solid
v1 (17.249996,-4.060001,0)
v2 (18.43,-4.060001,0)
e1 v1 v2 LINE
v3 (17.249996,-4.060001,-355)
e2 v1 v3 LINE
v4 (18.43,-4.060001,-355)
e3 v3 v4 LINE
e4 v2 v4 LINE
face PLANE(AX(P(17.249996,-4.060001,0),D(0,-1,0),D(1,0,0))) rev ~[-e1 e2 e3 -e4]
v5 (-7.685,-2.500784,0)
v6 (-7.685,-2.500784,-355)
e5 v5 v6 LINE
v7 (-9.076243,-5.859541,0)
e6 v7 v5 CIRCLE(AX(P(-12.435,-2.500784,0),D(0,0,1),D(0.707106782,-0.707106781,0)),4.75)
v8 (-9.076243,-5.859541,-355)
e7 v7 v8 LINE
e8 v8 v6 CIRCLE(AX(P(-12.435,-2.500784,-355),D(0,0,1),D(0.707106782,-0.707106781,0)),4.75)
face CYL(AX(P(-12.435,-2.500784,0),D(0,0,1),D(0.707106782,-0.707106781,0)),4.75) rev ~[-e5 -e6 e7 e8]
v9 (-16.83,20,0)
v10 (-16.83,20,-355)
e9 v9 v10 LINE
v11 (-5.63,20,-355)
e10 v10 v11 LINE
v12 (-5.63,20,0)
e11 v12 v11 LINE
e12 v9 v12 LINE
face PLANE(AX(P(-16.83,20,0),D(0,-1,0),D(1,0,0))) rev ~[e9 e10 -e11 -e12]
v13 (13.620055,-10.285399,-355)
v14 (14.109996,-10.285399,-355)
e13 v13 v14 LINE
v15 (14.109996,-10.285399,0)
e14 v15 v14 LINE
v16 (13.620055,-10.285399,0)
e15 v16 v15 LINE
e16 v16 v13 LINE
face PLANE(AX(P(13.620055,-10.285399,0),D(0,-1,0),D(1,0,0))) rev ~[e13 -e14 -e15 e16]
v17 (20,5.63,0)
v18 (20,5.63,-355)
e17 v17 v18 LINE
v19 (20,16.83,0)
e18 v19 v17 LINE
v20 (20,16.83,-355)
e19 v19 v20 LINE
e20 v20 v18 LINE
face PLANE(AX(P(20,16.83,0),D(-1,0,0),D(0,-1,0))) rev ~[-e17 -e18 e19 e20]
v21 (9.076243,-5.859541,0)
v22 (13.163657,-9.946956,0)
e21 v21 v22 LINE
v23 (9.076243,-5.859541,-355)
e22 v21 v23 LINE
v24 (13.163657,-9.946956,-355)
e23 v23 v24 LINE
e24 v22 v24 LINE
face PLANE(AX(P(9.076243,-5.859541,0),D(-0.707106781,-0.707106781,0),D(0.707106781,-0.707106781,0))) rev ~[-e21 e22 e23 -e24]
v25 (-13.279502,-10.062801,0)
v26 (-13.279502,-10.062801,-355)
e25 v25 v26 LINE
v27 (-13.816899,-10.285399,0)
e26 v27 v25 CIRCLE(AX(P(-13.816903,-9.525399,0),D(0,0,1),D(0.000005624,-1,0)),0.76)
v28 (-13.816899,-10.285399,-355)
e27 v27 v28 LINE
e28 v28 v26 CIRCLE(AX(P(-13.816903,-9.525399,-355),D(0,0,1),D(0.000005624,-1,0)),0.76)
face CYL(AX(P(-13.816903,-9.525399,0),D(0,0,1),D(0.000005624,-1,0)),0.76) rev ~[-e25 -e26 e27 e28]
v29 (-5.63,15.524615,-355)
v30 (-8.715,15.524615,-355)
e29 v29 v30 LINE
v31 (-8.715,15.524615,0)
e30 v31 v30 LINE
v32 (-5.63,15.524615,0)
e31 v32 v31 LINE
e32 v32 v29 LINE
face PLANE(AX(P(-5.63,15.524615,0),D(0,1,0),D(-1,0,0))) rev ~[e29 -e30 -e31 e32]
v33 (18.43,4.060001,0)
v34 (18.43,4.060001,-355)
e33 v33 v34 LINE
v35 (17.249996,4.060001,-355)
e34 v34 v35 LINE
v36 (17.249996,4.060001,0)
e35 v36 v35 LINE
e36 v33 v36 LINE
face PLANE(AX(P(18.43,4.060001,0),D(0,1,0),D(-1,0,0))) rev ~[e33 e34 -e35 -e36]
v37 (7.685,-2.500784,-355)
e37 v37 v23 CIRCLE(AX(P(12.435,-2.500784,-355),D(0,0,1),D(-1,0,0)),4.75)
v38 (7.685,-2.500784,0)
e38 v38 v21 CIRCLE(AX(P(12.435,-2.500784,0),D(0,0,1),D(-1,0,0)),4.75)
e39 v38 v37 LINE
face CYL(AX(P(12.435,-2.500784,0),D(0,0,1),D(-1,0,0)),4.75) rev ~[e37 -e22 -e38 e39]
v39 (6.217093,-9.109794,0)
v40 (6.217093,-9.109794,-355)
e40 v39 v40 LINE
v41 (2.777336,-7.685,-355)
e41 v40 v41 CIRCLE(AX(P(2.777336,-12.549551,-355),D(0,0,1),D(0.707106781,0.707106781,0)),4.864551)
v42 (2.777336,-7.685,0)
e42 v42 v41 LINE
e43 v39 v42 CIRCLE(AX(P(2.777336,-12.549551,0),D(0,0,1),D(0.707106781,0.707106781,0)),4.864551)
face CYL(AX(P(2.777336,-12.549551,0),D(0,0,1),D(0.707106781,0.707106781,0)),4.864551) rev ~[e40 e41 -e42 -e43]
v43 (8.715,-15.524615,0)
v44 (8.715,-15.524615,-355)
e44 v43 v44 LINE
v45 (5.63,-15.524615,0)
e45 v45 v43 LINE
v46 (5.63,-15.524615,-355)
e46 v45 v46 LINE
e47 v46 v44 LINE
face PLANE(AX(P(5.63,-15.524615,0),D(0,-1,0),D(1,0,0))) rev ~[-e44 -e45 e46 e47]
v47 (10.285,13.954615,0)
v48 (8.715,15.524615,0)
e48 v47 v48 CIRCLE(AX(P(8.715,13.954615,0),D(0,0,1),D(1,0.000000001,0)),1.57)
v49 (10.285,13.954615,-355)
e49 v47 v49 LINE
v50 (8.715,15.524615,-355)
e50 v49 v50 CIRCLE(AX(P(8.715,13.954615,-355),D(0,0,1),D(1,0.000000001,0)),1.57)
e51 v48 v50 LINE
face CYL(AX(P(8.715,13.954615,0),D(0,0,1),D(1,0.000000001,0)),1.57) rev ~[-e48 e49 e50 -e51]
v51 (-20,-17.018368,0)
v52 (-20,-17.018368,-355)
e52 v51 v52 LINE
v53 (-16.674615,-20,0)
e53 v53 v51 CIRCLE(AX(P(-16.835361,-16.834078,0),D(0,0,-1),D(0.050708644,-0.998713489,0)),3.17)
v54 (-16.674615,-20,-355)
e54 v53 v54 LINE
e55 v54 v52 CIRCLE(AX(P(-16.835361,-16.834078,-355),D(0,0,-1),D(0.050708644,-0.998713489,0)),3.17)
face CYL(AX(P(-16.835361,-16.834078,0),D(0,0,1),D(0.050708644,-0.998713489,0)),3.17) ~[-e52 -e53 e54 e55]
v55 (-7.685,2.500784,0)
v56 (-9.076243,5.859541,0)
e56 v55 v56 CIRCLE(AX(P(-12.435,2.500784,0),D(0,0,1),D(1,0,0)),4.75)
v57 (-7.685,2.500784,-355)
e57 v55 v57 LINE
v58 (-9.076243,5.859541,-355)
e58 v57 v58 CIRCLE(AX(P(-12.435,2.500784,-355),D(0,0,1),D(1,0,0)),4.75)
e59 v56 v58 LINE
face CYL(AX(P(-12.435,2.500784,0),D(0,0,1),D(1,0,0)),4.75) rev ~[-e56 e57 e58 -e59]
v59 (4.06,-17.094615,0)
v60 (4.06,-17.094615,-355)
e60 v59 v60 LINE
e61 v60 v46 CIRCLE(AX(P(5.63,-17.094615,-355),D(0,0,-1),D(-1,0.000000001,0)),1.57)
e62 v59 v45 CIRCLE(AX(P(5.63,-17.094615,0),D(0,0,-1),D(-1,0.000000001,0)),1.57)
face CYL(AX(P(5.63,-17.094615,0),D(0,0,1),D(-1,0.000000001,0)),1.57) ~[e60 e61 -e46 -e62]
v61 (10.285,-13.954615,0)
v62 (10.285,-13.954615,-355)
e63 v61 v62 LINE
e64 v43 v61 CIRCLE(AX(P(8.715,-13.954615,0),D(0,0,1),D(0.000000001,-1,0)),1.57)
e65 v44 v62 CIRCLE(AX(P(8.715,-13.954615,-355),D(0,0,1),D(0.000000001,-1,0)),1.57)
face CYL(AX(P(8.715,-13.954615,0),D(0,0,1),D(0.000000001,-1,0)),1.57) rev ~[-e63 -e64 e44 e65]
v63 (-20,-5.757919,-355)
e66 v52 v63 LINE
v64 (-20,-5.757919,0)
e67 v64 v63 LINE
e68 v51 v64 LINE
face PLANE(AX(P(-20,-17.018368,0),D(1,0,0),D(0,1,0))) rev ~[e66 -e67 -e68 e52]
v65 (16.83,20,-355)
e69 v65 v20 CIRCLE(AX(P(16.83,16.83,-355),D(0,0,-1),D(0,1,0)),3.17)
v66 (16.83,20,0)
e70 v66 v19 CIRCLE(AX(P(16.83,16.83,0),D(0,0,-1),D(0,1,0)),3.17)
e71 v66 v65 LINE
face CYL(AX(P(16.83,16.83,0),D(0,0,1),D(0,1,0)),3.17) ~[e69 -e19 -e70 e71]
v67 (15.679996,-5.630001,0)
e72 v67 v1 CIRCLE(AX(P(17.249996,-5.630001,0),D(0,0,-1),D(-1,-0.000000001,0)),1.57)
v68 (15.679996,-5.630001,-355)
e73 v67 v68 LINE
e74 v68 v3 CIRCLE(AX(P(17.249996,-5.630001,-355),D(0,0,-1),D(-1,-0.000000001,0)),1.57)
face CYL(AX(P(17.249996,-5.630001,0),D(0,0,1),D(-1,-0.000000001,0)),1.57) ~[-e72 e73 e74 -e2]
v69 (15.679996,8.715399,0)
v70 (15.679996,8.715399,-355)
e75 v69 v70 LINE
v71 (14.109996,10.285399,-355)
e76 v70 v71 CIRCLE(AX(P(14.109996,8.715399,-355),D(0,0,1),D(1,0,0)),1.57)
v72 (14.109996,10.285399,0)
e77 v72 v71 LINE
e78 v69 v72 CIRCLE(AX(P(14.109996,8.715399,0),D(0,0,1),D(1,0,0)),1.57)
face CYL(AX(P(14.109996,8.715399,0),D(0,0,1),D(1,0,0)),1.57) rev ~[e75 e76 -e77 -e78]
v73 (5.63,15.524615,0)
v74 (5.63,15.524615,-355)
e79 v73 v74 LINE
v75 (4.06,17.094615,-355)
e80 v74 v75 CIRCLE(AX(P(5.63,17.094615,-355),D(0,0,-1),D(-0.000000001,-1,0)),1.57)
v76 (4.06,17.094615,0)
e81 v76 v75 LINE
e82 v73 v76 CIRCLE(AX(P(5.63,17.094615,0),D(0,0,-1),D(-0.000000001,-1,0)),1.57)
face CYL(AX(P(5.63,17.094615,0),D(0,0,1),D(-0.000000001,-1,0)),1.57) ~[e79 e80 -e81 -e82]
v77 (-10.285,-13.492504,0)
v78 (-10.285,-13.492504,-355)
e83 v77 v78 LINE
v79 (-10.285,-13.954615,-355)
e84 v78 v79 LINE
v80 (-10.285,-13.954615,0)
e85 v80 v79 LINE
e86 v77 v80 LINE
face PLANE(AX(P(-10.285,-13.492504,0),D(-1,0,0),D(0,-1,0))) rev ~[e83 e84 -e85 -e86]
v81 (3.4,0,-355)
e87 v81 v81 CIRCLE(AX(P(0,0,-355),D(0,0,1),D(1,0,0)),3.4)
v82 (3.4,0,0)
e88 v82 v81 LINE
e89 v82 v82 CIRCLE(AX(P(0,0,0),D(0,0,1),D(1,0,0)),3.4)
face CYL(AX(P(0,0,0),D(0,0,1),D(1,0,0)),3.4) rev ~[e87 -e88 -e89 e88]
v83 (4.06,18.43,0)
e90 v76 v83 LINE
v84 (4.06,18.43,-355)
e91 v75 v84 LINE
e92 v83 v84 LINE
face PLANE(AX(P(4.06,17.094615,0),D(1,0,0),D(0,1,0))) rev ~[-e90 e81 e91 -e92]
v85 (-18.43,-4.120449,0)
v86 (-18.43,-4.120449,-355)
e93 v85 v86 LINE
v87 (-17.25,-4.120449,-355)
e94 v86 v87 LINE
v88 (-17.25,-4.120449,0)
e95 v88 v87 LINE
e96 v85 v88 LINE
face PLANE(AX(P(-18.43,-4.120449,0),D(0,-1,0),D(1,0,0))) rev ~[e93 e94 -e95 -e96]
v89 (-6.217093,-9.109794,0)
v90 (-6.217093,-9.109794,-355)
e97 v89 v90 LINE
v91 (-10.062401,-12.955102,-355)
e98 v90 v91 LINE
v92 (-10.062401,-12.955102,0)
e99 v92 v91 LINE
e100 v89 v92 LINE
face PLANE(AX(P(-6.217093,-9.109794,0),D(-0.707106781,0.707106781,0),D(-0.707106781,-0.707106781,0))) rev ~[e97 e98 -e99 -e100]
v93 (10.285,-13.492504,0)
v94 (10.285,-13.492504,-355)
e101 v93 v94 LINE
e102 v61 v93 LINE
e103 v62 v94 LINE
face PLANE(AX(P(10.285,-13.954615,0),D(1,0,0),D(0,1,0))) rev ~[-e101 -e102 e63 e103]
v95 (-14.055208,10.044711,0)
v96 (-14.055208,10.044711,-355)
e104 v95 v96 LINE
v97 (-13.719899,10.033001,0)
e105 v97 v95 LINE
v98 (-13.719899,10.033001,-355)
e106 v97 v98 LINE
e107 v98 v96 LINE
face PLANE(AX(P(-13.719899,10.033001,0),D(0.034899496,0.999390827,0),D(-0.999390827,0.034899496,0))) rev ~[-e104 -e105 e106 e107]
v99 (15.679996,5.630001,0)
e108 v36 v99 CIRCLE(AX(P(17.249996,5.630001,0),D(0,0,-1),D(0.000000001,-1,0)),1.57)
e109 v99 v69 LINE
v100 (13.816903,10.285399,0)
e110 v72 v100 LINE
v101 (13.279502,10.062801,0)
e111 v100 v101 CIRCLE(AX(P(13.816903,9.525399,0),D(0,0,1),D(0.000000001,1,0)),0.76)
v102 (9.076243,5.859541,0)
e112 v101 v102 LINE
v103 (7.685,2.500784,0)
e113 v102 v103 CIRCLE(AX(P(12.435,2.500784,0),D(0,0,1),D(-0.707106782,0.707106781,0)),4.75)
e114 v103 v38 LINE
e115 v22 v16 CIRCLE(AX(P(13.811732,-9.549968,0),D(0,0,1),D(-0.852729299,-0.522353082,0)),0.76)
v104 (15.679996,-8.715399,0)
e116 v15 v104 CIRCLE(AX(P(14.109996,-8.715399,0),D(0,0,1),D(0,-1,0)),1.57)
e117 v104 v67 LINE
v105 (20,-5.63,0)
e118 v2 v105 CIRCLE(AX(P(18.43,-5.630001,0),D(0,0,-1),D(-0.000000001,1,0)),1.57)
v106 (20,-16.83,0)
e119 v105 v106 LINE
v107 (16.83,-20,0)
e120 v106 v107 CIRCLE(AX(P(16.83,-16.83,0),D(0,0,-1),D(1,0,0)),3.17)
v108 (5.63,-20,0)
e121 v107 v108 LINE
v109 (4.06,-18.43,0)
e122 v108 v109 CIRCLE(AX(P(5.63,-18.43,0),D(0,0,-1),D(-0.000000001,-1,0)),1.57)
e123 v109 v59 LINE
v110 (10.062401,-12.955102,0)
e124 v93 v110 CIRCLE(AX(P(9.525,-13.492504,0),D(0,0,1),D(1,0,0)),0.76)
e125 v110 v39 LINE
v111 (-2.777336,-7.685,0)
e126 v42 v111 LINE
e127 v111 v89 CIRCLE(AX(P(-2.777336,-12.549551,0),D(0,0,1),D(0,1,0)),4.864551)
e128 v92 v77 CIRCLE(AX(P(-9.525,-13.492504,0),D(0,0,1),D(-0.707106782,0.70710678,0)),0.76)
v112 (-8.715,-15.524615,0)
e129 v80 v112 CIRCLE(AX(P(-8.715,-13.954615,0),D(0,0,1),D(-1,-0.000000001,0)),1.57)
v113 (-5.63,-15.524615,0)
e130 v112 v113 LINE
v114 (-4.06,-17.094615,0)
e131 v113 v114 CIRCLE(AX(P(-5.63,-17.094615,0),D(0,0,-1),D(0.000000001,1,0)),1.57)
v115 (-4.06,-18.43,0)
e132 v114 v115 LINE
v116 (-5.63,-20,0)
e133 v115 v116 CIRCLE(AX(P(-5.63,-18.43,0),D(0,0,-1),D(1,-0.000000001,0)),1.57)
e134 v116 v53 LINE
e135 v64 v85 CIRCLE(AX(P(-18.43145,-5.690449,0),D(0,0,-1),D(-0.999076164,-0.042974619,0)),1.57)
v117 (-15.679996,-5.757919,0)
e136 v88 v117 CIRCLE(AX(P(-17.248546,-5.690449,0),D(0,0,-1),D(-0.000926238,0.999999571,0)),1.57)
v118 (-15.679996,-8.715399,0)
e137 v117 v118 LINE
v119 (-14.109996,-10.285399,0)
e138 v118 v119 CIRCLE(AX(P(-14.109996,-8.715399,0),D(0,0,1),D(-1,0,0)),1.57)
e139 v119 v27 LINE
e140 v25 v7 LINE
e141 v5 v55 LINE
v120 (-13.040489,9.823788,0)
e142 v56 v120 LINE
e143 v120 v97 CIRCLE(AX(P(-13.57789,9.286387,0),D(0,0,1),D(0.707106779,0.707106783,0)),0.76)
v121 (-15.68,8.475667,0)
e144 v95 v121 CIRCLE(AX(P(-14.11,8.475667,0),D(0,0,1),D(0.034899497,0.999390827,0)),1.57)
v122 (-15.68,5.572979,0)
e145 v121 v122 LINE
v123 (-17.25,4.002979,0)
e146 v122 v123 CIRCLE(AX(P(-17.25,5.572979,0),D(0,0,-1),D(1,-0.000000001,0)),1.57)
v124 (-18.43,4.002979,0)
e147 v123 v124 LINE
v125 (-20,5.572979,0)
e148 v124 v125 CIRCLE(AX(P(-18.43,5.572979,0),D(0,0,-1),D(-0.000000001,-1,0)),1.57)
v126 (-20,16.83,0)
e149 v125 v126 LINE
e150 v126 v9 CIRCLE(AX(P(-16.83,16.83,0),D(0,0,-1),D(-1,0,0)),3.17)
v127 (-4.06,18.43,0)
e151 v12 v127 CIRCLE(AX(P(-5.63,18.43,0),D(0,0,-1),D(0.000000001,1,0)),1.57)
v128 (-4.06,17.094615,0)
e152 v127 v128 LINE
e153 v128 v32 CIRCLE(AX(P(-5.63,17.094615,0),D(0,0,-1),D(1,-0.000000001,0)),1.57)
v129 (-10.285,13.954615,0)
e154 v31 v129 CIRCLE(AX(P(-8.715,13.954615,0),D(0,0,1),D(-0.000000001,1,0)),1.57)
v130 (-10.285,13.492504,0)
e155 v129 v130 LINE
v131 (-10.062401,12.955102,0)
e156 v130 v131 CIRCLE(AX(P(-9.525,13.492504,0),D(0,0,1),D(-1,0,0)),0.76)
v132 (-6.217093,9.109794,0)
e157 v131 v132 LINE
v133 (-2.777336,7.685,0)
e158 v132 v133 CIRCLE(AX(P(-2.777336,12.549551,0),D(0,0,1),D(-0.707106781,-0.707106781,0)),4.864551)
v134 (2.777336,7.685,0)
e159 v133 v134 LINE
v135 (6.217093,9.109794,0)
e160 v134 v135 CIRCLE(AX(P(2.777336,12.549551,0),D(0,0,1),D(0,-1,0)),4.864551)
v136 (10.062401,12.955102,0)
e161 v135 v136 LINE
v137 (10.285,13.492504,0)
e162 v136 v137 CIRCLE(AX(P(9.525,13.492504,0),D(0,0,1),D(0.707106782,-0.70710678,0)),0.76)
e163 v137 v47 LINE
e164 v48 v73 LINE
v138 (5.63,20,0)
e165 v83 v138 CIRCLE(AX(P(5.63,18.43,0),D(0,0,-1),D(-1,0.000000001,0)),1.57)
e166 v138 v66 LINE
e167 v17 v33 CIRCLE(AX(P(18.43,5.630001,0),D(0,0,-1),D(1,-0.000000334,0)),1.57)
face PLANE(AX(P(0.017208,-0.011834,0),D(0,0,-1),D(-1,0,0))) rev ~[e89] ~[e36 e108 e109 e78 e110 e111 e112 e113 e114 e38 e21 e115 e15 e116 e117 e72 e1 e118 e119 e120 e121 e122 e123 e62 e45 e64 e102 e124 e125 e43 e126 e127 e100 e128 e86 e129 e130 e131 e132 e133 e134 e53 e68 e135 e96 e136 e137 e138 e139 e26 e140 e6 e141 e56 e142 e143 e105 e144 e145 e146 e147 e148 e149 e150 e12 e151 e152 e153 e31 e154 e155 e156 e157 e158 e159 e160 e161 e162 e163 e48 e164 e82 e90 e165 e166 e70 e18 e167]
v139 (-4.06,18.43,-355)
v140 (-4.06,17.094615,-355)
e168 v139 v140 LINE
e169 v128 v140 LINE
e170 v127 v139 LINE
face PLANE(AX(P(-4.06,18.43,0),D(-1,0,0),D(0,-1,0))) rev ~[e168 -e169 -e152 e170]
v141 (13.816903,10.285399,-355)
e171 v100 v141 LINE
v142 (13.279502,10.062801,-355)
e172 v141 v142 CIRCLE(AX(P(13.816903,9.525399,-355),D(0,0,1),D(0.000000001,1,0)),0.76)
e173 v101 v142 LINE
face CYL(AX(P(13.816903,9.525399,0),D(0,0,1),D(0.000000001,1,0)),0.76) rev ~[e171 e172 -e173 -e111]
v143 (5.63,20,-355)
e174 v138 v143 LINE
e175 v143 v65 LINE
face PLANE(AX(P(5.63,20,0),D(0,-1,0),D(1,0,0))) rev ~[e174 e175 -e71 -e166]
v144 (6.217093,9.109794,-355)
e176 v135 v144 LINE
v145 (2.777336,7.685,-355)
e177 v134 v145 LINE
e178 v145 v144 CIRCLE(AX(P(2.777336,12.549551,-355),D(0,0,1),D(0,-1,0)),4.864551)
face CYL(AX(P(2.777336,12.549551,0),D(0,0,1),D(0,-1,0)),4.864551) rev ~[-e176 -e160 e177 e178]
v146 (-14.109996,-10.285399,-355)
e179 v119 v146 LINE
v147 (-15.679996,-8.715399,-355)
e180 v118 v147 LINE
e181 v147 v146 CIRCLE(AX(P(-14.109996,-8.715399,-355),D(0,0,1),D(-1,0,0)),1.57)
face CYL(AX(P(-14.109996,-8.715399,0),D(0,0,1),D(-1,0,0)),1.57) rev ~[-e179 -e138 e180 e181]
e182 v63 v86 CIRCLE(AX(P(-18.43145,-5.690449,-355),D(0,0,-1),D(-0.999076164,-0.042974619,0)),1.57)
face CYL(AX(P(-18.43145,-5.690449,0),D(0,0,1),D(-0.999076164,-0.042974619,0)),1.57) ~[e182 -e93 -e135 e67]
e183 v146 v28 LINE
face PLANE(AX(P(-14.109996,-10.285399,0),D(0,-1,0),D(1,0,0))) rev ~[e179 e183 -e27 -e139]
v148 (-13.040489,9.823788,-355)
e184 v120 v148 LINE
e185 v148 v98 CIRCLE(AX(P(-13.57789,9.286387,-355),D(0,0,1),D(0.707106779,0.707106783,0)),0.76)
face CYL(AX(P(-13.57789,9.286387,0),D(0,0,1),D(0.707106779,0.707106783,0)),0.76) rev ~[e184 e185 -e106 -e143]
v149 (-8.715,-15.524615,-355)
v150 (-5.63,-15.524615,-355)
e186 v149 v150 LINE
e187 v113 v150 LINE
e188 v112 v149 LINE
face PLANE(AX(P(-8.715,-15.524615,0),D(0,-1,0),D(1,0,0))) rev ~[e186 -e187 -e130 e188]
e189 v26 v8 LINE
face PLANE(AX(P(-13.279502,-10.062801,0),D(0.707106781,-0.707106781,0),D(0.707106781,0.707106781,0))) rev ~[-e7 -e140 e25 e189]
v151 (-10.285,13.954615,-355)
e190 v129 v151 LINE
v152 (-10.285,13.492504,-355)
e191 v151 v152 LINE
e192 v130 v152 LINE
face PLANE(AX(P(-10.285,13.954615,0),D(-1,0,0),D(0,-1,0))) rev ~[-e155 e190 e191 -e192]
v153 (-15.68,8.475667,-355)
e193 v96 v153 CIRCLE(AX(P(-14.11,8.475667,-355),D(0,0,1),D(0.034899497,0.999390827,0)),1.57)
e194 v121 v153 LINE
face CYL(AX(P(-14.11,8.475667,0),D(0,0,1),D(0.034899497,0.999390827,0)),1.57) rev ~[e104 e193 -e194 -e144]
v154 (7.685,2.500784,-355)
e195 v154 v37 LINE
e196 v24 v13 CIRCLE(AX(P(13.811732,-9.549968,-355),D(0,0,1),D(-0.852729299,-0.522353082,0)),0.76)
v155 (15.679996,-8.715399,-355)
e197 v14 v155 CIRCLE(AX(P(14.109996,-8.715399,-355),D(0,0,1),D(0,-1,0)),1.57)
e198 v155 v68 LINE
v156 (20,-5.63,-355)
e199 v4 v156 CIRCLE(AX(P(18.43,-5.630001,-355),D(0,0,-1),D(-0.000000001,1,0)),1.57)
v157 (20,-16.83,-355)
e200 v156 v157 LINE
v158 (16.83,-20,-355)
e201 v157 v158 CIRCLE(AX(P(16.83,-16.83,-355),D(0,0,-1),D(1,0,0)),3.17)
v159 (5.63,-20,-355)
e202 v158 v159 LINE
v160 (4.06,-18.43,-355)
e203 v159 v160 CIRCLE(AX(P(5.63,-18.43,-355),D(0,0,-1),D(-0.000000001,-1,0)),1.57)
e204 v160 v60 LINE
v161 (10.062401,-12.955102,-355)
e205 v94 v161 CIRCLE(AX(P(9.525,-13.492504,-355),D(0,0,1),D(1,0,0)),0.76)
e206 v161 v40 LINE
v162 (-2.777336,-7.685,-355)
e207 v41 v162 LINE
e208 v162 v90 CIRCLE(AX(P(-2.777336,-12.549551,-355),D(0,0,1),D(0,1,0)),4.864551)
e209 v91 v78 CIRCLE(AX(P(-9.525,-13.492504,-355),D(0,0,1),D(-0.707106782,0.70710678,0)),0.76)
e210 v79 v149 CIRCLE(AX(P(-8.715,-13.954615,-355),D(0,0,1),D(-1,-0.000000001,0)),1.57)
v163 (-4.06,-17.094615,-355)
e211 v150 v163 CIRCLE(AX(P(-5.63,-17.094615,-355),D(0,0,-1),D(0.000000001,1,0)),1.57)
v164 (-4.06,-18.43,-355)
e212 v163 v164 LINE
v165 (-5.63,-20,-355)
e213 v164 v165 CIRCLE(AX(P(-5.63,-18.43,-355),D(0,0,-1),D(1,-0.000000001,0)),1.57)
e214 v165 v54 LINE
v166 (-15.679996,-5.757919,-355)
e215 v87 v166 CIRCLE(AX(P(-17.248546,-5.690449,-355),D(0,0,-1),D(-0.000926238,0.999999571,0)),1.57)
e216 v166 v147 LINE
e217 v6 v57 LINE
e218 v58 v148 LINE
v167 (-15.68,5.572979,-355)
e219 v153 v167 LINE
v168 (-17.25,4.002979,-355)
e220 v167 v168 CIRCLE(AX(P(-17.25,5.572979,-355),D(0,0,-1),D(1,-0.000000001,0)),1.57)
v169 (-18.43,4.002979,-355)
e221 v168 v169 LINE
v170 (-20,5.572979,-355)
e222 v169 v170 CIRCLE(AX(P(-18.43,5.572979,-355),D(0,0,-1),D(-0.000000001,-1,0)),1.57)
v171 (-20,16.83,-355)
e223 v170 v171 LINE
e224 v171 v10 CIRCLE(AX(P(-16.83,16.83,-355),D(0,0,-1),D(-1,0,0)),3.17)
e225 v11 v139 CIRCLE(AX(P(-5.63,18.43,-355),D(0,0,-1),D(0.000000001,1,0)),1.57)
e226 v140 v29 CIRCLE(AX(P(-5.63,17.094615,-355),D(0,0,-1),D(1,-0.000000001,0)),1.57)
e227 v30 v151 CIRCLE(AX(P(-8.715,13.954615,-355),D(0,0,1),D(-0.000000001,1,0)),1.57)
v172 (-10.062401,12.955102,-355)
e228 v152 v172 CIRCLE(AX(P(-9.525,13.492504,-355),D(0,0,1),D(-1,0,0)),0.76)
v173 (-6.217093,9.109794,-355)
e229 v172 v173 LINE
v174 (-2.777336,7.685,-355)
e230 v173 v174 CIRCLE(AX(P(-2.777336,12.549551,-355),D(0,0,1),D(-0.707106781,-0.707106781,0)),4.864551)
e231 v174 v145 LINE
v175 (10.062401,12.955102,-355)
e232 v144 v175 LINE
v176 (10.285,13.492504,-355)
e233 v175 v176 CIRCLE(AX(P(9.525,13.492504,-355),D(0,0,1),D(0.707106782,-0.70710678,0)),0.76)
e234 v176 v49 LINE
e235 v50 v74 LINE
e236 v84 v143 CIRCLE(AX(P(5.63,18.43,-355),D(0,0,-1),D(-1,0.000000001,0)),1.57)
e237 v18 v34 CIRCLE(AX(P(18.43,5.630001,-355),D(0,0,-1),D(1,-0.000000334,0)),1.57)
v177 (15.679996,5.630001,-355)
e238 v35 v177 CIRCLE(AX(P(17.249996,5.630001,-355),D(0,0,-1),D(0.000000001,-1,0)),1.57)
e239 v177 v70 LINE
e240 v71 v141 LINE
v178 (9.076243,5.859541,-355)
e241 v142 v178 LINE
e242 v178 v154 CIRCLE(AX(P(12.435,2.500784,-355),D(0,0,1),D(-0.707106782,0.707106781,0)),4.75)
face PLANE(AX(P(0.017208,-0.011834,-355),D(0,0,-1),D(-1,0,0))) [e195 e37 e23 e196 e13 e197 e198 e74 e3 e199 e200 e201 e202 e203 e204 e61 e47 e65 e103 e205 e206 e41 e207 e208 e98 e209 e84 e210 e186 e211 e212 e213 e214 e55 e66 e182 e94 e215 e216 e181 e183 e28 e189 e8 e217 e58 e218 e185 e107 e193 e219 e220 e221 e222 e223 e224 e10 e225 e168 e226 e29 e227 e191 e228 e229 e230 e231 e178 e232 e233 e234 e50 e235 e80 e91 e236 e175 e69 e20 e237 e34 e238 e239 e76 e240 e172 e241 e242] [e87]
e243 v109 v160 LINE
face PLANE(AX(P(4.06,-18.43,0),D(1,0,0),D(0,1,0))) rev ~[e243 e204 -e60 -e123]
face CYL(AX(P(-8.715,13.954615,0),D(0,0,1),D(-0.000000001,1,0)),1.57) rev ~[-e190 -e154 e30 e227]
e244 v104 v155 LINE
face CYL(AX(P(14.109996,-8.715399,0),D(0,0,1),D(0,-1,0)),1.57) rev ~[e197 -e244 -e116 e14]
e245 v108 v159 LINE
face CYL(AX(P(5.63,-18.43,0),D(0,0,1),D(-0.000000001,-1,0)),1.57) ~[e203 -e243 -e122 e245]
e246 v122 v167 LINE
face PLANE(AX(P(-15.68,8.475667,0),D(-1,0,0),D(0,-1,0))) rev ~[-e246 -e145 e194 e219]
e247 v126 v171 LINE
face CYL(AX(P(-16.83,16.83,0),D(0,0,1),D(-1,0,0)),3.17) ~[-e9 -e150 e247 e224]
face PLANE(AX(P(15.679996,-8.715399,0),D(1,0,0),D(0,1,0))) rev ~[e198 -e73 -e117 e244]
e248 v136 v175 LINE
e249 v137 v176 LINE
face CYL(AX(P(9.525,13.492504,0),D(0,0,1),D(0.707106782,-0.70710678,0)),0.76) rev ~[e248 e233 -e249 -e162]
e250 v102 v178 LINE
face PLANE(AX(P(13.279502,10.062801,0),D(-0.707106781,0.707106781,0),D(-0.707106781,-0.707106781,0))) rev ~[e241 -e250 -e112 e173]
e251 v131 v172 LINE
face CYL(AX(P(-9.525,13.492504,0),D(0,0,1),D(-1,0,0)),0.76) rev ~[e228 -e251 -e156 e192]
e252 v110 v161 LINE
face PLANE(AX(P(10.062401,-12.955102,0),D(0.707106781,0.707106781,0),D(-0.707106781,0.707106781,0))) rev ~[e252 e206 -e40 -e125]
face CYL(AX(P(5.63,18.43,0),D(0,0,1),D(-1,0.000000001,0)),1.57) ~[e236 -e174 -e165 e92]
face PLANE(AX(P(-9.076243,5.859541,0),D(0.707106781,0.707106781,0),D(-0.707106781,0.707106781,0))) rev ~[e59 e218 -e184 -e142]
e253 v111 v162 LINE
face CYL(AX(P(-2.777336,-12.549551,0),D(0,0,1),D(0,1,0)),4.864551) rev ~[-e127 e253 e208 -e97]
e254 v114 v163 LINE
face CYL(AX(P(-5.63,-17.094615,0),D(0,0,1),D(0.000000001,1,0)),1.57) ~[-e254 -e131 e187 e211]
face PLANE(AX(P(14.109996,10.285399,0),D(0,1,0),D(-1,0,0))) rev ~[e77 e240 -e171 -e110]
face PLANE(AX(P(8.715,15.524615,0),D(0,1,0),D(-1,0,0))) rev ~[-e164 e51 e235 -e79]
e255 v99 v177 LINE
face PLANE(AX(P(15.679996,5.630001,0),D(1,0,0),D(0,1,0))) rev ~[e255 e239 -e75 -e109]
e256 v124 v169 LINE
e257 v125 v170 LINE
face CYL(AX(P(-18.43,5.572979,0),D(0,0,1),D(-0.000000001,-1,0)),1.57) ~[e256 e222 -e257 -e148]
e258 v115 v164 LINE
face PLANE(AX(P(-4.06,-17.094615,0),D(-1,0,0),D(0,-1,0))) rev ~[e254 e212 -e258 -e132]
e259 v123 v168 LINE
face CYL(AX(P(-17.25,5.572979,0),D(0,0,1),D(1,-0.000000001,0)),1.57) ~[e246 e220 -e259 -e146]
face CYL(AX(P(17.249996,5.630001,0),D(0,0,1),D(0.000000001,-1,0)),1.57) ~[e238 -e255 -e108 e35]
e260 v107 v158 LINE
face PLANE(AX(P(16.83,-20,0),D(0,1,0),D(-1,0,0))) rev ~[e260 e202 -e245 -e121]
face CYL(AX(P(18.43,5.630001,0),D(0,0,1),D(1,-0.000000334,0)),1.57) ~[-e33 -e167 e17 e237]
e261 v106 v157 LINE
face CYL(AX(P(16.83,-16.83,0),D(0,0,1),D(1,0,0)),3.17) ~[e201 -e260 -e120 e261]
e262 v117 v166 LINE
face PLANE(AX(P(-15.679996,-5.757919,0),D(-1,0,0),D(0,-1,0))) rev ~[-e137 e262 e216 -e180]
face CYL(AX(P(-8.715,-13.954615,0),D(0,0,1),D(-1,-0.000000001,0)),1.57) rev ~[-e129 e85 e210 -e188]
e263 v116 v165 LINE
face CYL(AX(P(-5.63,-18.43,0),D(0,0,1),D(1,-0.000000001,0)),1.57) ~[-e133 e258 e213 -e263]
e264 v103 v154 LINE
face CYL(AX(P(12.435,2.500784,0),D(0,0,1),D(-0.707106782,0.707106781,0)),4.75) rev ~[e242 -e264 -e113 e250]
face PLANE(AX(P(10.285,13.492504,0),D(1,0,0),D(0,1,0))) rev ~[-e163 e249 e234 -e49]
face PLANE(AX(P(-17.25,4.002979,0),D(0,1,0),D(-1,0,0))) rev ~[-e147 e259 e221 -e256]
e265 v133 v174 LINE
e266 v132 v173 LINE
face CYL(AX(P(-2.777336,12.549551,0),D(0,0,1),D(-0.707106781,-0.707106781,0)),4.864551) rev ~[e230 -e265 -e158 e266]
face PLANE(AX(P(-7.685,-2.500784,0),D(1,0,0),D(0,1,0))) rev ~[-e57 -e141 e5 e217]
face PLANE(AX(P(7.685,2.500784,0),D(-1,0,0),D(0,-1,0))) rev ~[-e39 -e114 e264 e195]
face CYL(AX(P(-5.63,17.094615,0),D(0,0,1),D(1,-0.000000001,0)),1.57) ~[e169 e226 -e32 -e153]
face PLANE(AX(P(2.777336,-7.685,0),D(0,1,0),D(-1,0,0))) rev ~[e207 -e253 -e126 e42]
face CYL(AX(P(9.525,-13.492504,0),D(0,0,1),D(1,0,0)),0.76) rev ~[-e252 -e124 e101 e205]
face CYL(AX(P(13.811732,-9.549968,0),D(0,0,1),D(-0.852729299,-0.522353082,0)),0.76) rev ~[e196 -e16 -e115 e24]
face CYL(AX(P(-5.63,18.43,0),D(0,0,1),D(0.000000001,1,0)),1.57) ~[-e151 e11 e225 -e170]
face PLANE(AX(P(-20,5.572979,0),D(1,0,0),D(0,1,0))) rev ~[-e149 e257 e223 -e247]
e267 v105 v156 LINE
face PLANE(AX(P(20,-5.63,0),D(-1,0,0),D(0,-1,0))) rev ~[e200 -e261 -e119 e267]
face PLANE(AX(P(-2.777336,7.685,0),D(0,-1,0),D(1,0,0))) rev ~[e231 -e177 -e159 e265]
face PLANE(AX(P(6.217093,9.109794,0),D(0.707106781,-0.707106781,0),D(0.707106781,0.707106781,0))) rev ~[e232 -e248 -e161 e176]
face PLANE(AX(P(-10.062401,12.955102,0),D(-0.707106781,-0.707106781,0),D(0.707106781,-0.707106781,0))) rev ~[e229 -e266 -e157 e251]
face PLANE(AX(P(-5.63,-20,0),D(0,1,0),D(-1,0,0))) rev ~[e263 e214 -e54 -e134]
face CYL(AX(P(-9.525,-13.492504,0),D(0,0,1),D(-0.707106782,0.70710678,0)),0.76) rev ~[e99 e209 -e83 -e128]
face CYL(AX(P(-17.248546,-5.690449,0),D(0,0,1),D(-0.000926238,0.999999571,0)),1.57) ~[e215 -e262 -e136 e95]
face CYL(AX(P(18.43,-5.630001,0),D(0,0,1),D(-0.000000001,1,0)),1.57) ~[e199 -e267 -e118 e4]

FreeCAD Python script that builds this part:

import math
import FreeCAD as App
import Part
import Sketcher

V = App.Vector
Q = App.Units.Quantity

doc = App.newDocument("Part")
params = doc.addObject("Spreadsheet::Sheet", "Params")
for row, (alias, value) in enumerate([
    ("sketch1_diameter", "6.8 mm"),
    ("sketch1_radius", "1.57 mm"),
    ("sketch1_radius2", "0.76 mm"),
    ("sketch1_radius3", "3.17 mm"),
    ("sketch1_radius4", "4.75 mm"),
    ("pad1_length", "355 mm"),
], start=1):
    params.set(f"A{row}", alias)
    params.set(f"B{row}", "=" + value)
    params.setAlias(f"B{row}", alias)

body = doc.addObject("PartDesign::Body", "Body")

# Sketch on XY plane
sketch1 = body.newObject("Sketcher::SketchObject", "Sketch")
sketch1.AttachmentSupport = (doc.getObject("XY_Plane"), [""])
sketch1.MapMode = "FlatFace"
sketch1.addGeometry([
    Part.LineSegment(V(-5.63, -15.524615, 0), V(-8.715, -15.524615, 0)),  # 0
    Part.ArcOfCircle(Part.Circle(V(-8.715, -13.954615, 0), V(0, 0, 1), 1.57), math.radians(-180), math.radians(-90)),  # 1
    Part.LineSegment(V(-10.285, -13.954615, 0), V(-10.285, -13.492504, 0)),  # 2
    Part.ArcOfCircle(Part.Circle(V(-9.525, -13.492504, 0), V(0, 0, 1), 0.76), math.radians(135), math.radians(180)),  # 3
    Part.LineSegment(V(-10.062401, -12.955102, 0), V(-6.217093, -9.109794, 0)),  # 4
    Part.ArcOfCircle(Part.Circle(V(-2.777336, -12.549551, 0), V(0, 0, 1), 4.864551), math.radians(90), math.radians(135)),  # 5
    Part.LineSegment(V(-2.777336, -7.685, 0), V(2.777336, -7.685, 0)),  # 6
    Part.ArcOfCircle(Part.Circle(V(2.777336, -12.549551, 0), V(0, 0, 1), 4.864551), math.radians(45), math.radians(90)),  # 7
    Part.LineSegment(V(6.217093, -9.109794, 0), V(10.062401, -12.955102, 0)),  # 8
    Part.ArcOfCircle(Part.Circle(V(9.525, -13.492504, 0), V(0, 0, 1), 0.76), math.radians(0), math.radians(45)),  # 9
    Part.LineSegment(V(10.285, -13.492504, 0), V(10.285, -13.954615, 0)),  # 10
    Part.ArcOfCircle(Part.Circle(V(8.715, -13.954615, 0), V(0, 0, 1), 1.57), math.radians(-90), math.radians(0)),  # 11
    Part.LineSegment(V(8.715, -15.524615, 0), V(5.63, -15.524615, 0)),  # 12
    Part.ArcOfCircle(Part.Circle(V(5.63, -17.094615, 0), V(0, 0, 1), 1.57), math.radians(90), math.radians(180)),  # 13
    Part.LineSegment(V(4.06, -17.094615, 0), V(4.06, -18.43, 0)),  # 14
    Part.ArcOfCircle(Part.Circle(V(5.63, -18.43, 0), V(0, 0, 1), 1.57), math.radians(-180), math.radians(-90)),  # 15
    Part.LineSegment(V(5.63, -20, 0), V(16.83, -20, 0)),  # 16
    Part.ArcOfCircle(Part.Circle(V(16.83, -16.83, 0), V(0, 0, 1), 3.17), math.radians(-90), math.radians(0)),  # 17
    Part.LineSegment(V(20, -16.83, 0), V(20, -5.63, 0)),  # 18
    Part.ArcOfCircle(Part.Circle(V(18.43, -5.630001, 0), V(0, 0, 1), 1.57), math.radians(0.000019), math.radians(90)),  # 19
    Part.LineSegment(V(18.43, -4.060001, 0), V(17.249996, -4.060001, 0)),  # 20
    Part.ArcOfCircle(Part.Circle(V(17.249996, -5.630001, 0), V(0, 0, 1), 1.57), math.radians(90), math.radians(180)),  # 21
    Part.LineSegment(V(15.679996, -5.630001, 0), V(15.679996, -8.715399, 0)),  # 22
    Part.ArcOfCircle(Part.Circle(V(14.109996, -8.715399, 0), V(0, 0, 1), 1.57), math.radians(-90), math.radians(0)),  # 23
    Part.LineSegment(V(14.109996, -10.285399, 0), V(13.620055, -10.285399, 0)),  # 24
    Part.ArcOfCircle(Part.Circle(V(13.811732, -9.549968, 0), V(0, 0, 1), 0.76), math.radians(-148.509776), math.radians(-104.608114)),  # 25
    Part.LineSegment(V(13.163657, -9.946956, 0), V(9.076243, -5.859541, 0)),  # 26
    Part.ArcOfCircle(Part.Circle(V(12.435, -2.500784, 0), V(0, 0, 1), 4.75), math.radians(-180), math.radians(-135)),  # 27
    Part.LineSegment(V(7.685, -2.500784, 0), V(7.685, 2.500784, 0)),  # 28
    Part.ArcOfCircle(Part.Circle(V(12.435, 2.500784, 0), V(0, 0, 1), 4.75), math.radians(135), math.radians(180)),  # 29
    Part.LineSegment(V(9.076243, 5.859541, 0), V(13.279502, 10.062801, 0)),  # 30
    Part.ArcOfCircle(Part.Circle(V(13.816903, 9.525399, 0), V(0, 0, 1), 0.76), math.radians(90), math.radians(135)),  # 31
    Part.LineSegment(V(13.816903, 10.285399, 0), V(14.109996, 10.285399, 0)),  # 32
    Part.ArcOfCircle(Part.Circle(V(14.109996, 8.715399, 0), V(0, 0, 1), 1.57), math.radians(0), math.radians(90)),  # 33
    Part.LineSegment(V(15.679996, 8.715399, 0), V(15.679996, 5.630001, 0)),  # 34
    Part.ArcOfCircle(Part.Circle(V(17.249996, 5.630001, 0), V(0, 0, 1), 1.57), math.radians(180), math.radians(270)),  # 35
    Part.LineSegment(V(17.249996, 4.060001, 0), V(18.43, 4.060001, 0)),  # 36
    Part.ArcOfCircle(Part.Circle(V(18.43, 5.630001, 0), V(0, 0, 1), 1.57), math.radians(-90), math.radians(-0.000019)),  # 37
    Part.LineSegment(V(20, 5.63, 0), V(20, 16.83, 0)),  # 38
    Part.ArcOfCircle(Part.Circle(V(16.83, 16.83, 0), V(0, 0, 1), 3.17), math.radians(0), math.radians(90)),  # 39
    Part.LineSegment(V(16.83, 20, 0), V(5.63, 20, 0)),  # 40
    Part.ArcOfCircle(Part.Circle(V(5.63, 18.43, 0), V(0, 0, 1), 1.57), math.radians(90), math.radians(180)),  # 41
    Part.LineSegment(V(4.06, 18.43, 0), V(4.06, 17.094615, 0)),  # 42
    Part.ArcOfCircle(Part.Circle(V(5.63, 17.094615, 0), V(0, 0, 1), 1.57), math.radians(-180), math.radians(-90)),  # 43
    Part.LineSegment(V(5.63, 15.524615, 0), V(8.715, 15.524615, 0)),  # 44
    Part.ArcOfCircle(Part.Circle(V(8.715, 13.954615, 0), V(0, 0, 1), 1.57), math.radians(0), math.radians(90)),  # 45
    Part.LineSegment(V(10.285, 13.954615, 0), V(10.285, 13.492504, 0)),  # 46
    Part.ArcOfCircle(Part.Circle(V(9.525, 13.492504, 0), V(0, 0, 1), 0.76), math.radians(-45), math.radians(0)),  # 47
    Part.LineSegment(V(10.062401, 12.955102, 0), V(6.217093, 9.109794, 0)),  # 48
    Part.ArcOfCircle(Part.Circle(V(2.777336, 12.549551, 0), V(0, 0, 1), 4.864551), math.radians(-90), math.radians(-45)),  # 49
    Part.LineSegment(V(2.777336, 7.685, 0), V(-2.777336, 7.685, 0)),  # 50
    Part.ArcOfCircle(Part.Circle(V(-2.777336, 12.549551, 0), V(0, 0, 1), 4.864551), math.radians(-135), math.radians(-90)),  # 51
    Part.LineSegment(V(-6.217093, 9.109794, 0), V(-10.062401, 12.955102, 0)),  # 52
    Part.ArcOfCircle(Part.Circle(V(-9.525, 13.492504, 0), V(0, 0, 1), 0.76), math.radians(180), math.radians(225)),  # 53
    Part.LineSegment(V(-10.285, 13.492504, 0), V(-10.285, 13.954615, 0)),  # 54
    Part.ArcOfCircle(Part.Circle(V(-8.715, 13.954615, 0), V(0, 0, 1), 1.57), math.radians(90), math.radians(180)),  # 55
    Part.LineSegment(V(-8.715, 15.524615, 0), V(-5.63, 15.524615, 0)),  # 56
    Part.ArcOfCircle(Part.Circle(V(-5.63, 17.094615, 0), V(0, 0, 1), 1.57), math.radians(-90), math.radians(0)),  # 57
    Part.LineSegment(V(-4.06, 17.094615, 0), V(-4.06, 18.43, 0)),  # 58
    Part.ArcOfCircle(Part.Circle(V(-5.63, 18.43, 0), V(0, 0, 1), 1.57), math.radians(0), math.radians(90)),  # 59
    Part.LineSegment(V(-5.63, 20, 0), V(-16.83, 20, 0)),  # 60
    Part.ArcOfCircle(Part.Circle(V(-16.83, 16.83, 0), V(0, 0, 1), 3.17), math.radians(90), math.radians(180)),  # 61
    Part.LineSegment(V(-20, 16.83, 0), V(-20, 5.572979, 0)),  # 62
    Part.ArcOfCircle(Part.Circle(V(-18.43, 5.572979, 0), V(0, 0, 1), 1.57), math.radians(-180), math.radians(-90)),  # 63
    Part.LineSegment(V(-18.43, 4.002979, 0), V(-17.25, 4.002979, 0)),  # 64
    Part.ArcOfCircle(Part.Circle(V(-17.25, 5.572979, 0), V(0, 0, 1), 1.57), math.radians(-90), math.radians(0)),  # 65
    Part.LineSegment(V(-15.68, 5.572979, 0), V(-15.68, 8.475667, 0)),  # 66
    Part.ArcOfCircle(Part.Circle(V(-14.11, 8.475667, 0), V(0, 0, 1), 1.57), math.radians(88), math.radians(180)),  # 67
    Part.LineSegment(V(-14.055208, 10.044711, 0), V(-13.719899, 10.033001, 0)),  # 68
    Part.ArcOfCircle(Part.Circle(V(-13.57789, 9.286387, 0), V(0, 0, 1), 0.76), math.radians(45), math.radians(100.769233)),  # 69
    Part.LineSegment(V(-13.040489, 9.823788, 0), V(-9.076243, 5.859541, 0)),  # 70
    Part.ArcOfCircle(Part.Circle(V(-12.435, 2.500784, 0), V(0, 0, 1), 4.75), math.radians(0), math.radians(45)),  # 71
    Part.LineSegment(V(-7.685, 2.500784, 0), V(-7.685, -2.500784, 0)),  # 72
    Part.ArcOfCircle(Part.Circle(V(-12.435, -2.500784, 0), V(0, 0, 1), 4.75), math.radians(-45), math.radians(0)),  # 73
    Part.LineSegment(V(-9.076243, -5.859541, 0), V(-13.279502, -10.062801, 0)),  # 74
    Part.ArcOfCircle(Part.Circle(V(-13.816903, -9.525399, 0), V(0, 0, 1), 0.76), math.radians(-89.999678), math.radians(-45)),  # 75
    Part.LineSegment(V(-13.816899, -10.285399, 0), V(-14.109996, -10.285399, 0)),  # 76
    Part.ArcOfCircle(Part.Circle(V(-14.109996, -8.715399, 0), V(0, 0, 1), 1.57), math.radians(180), math.radians(270)),  # 77
    Part.LineSegment(V(-15.679996, -8.715399, 0), V(-15.679996, -5.757919, 0)),  # 78
    Part.ArcOfCircle(Part.Circle(V(-17.248546, -5.690449, 0), V(0, 0, 1), 1.57), math.radians(-2.463042), math.radians(90.05307)),  # 79
    Part.LineSegment(V(-17.25, -4.120449, 0), V(-18.43, -4.120449, 0)),  # 80
    Part.ArcOfCircle(Part.Circle(V(-18.43145, -5.690449, 0), V(0, 0, 1), 1.57), math.radians(89.947068), math.radians(182.463023)),  # 81
    Part.LineSegment(V(-20, -5.757919, 0), V(-20, -17.018368, 0)),  # 82
    Part.ArcOfCircle(Part.Circle(V(-16.835361, -16.834078, 0), V(0, 0, 1), 3.17), math.radians(-176.667196), math.radians(-87.093362)),  # 83
    Part.LineSegment(V(-16.674615, -20, 0), V(-5.63, -20, 0)),  # 84
    Part.ArcOfCircle(Part.Circle(V(-5.63, -18.43, 0), V(0, 0, 1), 1.57), math.radians(-90), math.radians(0)),  # 85
    Part.LineSegment(V(-4.06, -18.43, 0), V(-4.06, -17.094615, 0)),  # 86
    Part.ArcOfCircle(Part.Circle(V(-5.63, -17.094615, 0), V(0, 0, 1), 1.57), math.radians(0), math.radians(90)),  # 87
    Part.Circle(V(0, 0, 0), V(0, 0, 1), 3.4),  # 88
], False)
sketch1.addConstraint([
    Sketcher.Constraint("Tangent", 0, 2, 1, 2),
    Sketcher.Constraint("Tangent", 1, 1, 2, 1),
    Sketcher.Constraint("Tangent", 2, 2, 3, 2),
    Sketcher.Constraint("Tangent", 3, 1, 4, 1),
    Sketcher.Constraint("Tangent", 4, 2, 5, 2),
    Sketcher.Constraint("Tangent", 5, 1, 6, 1),
    Sketcher.Constraint("Tangent", 6, 2, 7, 2),
    Sketcher.Constraint("Tangent", 7, 1, 8, 1),
    Sketcher.Constraint("Tangent", 8, 2, 9, 2),
    Sketcher.Constraint("Tangent", 9, 1, 10, 1),
    Sketcher.Constraint("Tangent", 10, 2, 11, 2),
    Sketcher.Constraint("Tangent", 11, 1, 12, 1),
    Sketcher.Constraint("Tangent", 12, 2, 13, 1),
    Sketcher.Constraint("Tangent", 13, 2, 14, 1),
    Sketcher.Constraint("Tangent", 14, 2, 15, 1),
    Sketcher.Constraint("Tangent", 15, 2, 16, 1),
    Sketcher.Constraint("Tangent", 16, 2, 17, 1),
    Sketcher.Constraint("Tangent", 17, 2, 18, 1),
    Sketcher.Constraint("Tangent", 18, 2, 19, 1),
    Sketcher.Constraint("Tangent", 19, 2, 20, 1),
    Sketcher.Constraint("Tangent", 20, 2, 21, 1),
    Sketcher.Constraint("Tangent", 21, 2, 22, 1),
    Sketcher.Constraint("Tangent", 22, 2, 23, 2),
    Sketcher.Constraint("Tangent", 23, 1, 24, 1),
    Sketcher.Constraint("Coincident", 24, 2, 25, 2),
    Sketcher.Constraint("Coincident", 25, 1, 26, 1),
    Sketcher.Constraint("Tangent", 26, 2, 27, 2),
    Sketcher.Constraint("Tangent", 27, 1, 28, 1),
    Sketcher.Constraint("Tangent", 28, 2, 29, 2),
    Sketcher.Constraint("Tangent", 29, 1, 30, 1),
    Sketcher.Constraint("Tangent", 30, 2, 31, 2),
    Sketcher.Constraint("Tangent", 31, 1, 32, 1),
    Sketcher.Constraint("Tangent", 32, 2, 33, 2),
    Sketcher.Constraint("Tangent", 33, 1, 34, 1),
    Sketcher.Constraint("Tangent", 34, 2, 35, 1),
    Sketcher.Constraint("Tangent", 35, 2, 36, 1),
    Sketcher.Constraint("Tangent", 36, 2, 37, 1),
    Sketcher.Constraint("Tangent", 37, 2, 38, 1),
    Sketcher.Constraint("Tangent", 38, 2, 39, 1),
    Sketcher.Constraint("Tangent", 39, 2, 40, 1),
    Sketcher.Constraint("Tangent", 40, 2, 41, 1),
    Sketcher.Constraint("Tangent", 41, 2, 42, 1),
    Sketcher.Constraint("Tangent", 42, 2, 43, 1),
    Sketcher.Constraint("Tangent", 43, 2, 44, 1),
    Sketcher.Constraint("Tangent", 44, 2, 45, 2),
    Sketcher.Constraint("Tangent", 45, 1, 46, 1),
    Sketcher.Constraint("Tangent", 46, 2, 47, 2),
    Sketcher.Constraint("Tangent", 47, 1, 48, 1),
    Sketcher.Constraint("Tangent", 48, 2, 49, 2),
    Sketcher.Constraint("Tangent", 49, 1, 50, 1),
    Sketcher.Constraint("Tangent", 50, 2, 51, 2),
    Sketcher.Constraint("Tangent", 51, 1, 52, 1),
    Sketcher.Constraint("Tangent", 52, 2, 53, 2),
    Sketcher.Constraint("Tangent", 53, 1, 54, 1),
    Sketcher.Constraint("Tangent", 54, 2, 55, 2),
    Sketcher.Constraint("Tangent", 55, 1, 56, 1),
    Sketcher.Constraint("Tangent", 56, 2, 57, 1),
    Sketcher.Constraint("Tangent", 57, 2, 58, 1),
    Sketcher.Constraint("Tangent", 58, 2, 59, 1),
    Sketcher.Constraint("Tangent", 59, 2, 60, 1),
    Sketcher.Constraint("Tangent", 60, 2, 61, 1),
    Sketcher.Constraint("Tangent", 61, 2, 62, 1),
    Sketcher.Constraint("Tangent", 62, 2, 63, 1),
    Sketcher.Constraint("Tangent", 63, 2, 64, 1),
    Sketcher.Constraint("Tangent", 64, 2, 65, 1),
    Sketcher.Constraint("Tangent", 65, 2, 66, 1),
    Sketcher.Constraint("Tangent", 66, 2, 67, 2),
    Sketcher.Constraint("Tangent", 67, 1, 68, 1),
    Sketcher.Constraint("Coincident", 68, 2, 69, 2),
    Sketcher.Constraint("Tangent", 69, 1, 70, 1),
    Sketcher.Constraint("Tangent", 70, 2, 71, 2),
    Sketcher.Constraint("Tangent", 71, 1, 72, 1),
    Sketcher.Constraint("Tangent", 72, 2, 73, 2),
    Sketcher.Constraint("Tangent", 73, 1, 74, 1),
    Sketcher.Constraint("Tangent", 74, 2, 75, 2),
    Sketcher.Constraint("Coincident", 75, 1, 76, 1),
    Sketcher.Constraint("Tangent", 76, 2, 77, 2),
    Sketcher.Constraint("Tangent", 77, 1, 78, 1),
    Sketcher.Constraint("Coincident", 78, 2, 79, 1),
    Sketcher.Constraint("Coincident", 79, 2, 80, 1),
    Sketcher.Constraint("Coincident", 80, 2, 81, 1),
    Sketcher.Constraint("Coincident", 81, 2, 82, 1),
    Sketcher.Constraint("Coincident", 82, 2, 83, 1),
    Sketcher.Constraint("Coincident", 83, 2, 84, 1),
    Sketcher.Constraint("Tangent", 84, 2, 85, 1),
    Sketcher.Constraint("Tangent", 85, 2, 86, 1),
    Sketcher.Constraint("Tangent", 86, 2, 87, 1),
    Sketcher.Constraint("Tangent", 87, 2, 0, 1),
    Sketcher.Constraint("Horizontal", 0),
    Sketcher.Constraint("Vertical", 2),
    Sketcher.Constraint("Horizontal", 6),
    Sketcher.Constraint("Vertical", 10),
    Sketcher.Constraint("Horizontal", 12),
    Sketcher.Constraint("Vertical", 14),
    Sketcher.Constraint("Horizontal", 16),
    Sketcher.Constraint("Vertical", 18),
    Sketcher.Constraint("Horizontal", 20),
    Sketcher.Constraint("Vertical", 22),
    Sketcher.Constraint("Horizontal", 24),
    Sketcher.Constraint("Vertical", 28),
    Sketcher.Constraint("Horizontal", 32),
    Sketcher.Constraint("Vertical", 34),
    Sketcher.Constraint("Horizontal", 36),
    Sketcher.Constraint("Vertical", 38),
    Sketcher.Constraint("Horizontal", 40),
    Sketcher.Constraint("Vertical", 42),
    Sketcher.Constraint("Horizontal", 44),
    Sketcher.Constraint("Vertical", 46),
    Sketcher.Constraint("Horizontal", 50),
    Sketcher.Constraint("Vertical", 54),
    Sketcher.Constraint("Horizontal", 56),
    Sketcher.Constraint("Vertical", 58),
    Sketcher.Constraint("Horizontal", 60),
    Sketcher.Constraint("Vertical", 62),
    Sketcher.Constraint("Horizontal", 64),
    Sketcher.Constraint("Vertical", 66),
    Sketcher.Constraint("Vertical", 72),
    Sketcher.Constraint("Horizontal", 76),
    Sketcher.Constraint("Vertical", 78),
    Sketcher.Constraint("Horizontal", 80),
    Sketcher.Constraint("Vertical", 82),
    Sketcher.Constraint("Horizontal", 84),
    Sketcher.Constraint("Vertical", 86),
    Sketcher.Constraint("Coincident", 88, 3, -1, 1),
    Sketcher.Constraint("Equal", 5, 7),
    Sketcher.Constraint("Equal", 3, 9),
    Sketcher.Constraint("Equal", 1, 11),
    Sketcher.Constraint("Equal", 11, 13),
    Sketcher.Constraint("Equal", 13, 15),
    Sketcher.Constraint("Equal", 15, 19),
    Sketcher.Constraint("Equal", 19, 21),
    Sketcher.Constraint("Equal", 21, 23),
    Sketcher.Constraint("Equal", 9, 25),
    Sketcher.Constraint("Equal", 27, 29),
    Sketcher.Constraint("Equal", 25, 31),
    Sketcher.Constraint("Equal", 23, 33),
    Sketcher.Constraint("Equal", 33, 35),
    Sketcher.Constraint("Equal", 35, 37),
    Sketcher.Constraint("Equal", 17, 39),
    Sketcher.Constraint("Equal", 37, 41),
    Sketcher.Constraint("Equal", 41, 43),
    Sketcher.Constraint("Equal", 43, 45),
    Sketcher.Constraint("Equal", 31, 47),
    Sketcher.Constraint("Equal", 7, 49),
    Sketcher.Constraint("Equal", 49, 51),
    Sketcher.Constraint("Equal", 47, 53),
    Sketcher.Constraint("Equal", 45, 55),
    Sketcher.Constraint("Equal", 55, 57),
    Sketcher.Constraint("Equal", 57, 59),
    Sketcher.Constraint("Equal", 39, 61),
    Sketcher.Constraint("Equal", 59, 63),
    Sketcher.Constraint("Equal", 63, 65),
    Sketcher.Constraint("Equal", 65, 67),
    Sketcher.Constraint("Equal", 53, 69),
    Sketcher.Constraint("Equal", 29, 71),
    Sketcher.Constraint("Equal", 71, 73),
    Sketcher.Constraint("Equal", 69, 75),
    Sketcher.Constraint("Equal", 67, 77),
    Sketcher.Constraint("Equal", 77, 79),
    Sketcher.Constraint("Equal", 79, 81),
    Sketcher.Constraint("Equal", 61, 83),
    Sketcher.Constraint("Equal", 81, 85),
    Sketcher.Constraint("Equal", 85, 87),
    Sketcher.Constraint("Symmetric", 1, 3, 45, 3, -1, 1),
    Sketcher.Constraint("Symmetric", 5, 3, 49, 3, -1, 1),
    Sketcher.Constraint("Symmetric", 9, 3, 53, 3, -1, 1),
    Sketcher.Constraint("Symmetric", 13, 3, 57, 3, -1, 1),
    Sketcher.Constraint("Symmetric", 17, 3, 61, 3, -1, 1),
    Sketcher.Constraint("Symmetric", 27, 3, 71, 3, -1, 1),
    Sketcher.Constraint("Symmetric", 31, 3, 75, 3, -1, 1),
    Sketcher.Constraint("Symmetric", 41, 3, 85, 3, -1, 1),
    Sketcher.Constraint("Symmetric", 3, 3, 9, 3, -2),
    Sketcher.Constraint("Symmetric", 43, 3, 57, 3, -2),
    Sketcher.Constraint("Symmetric", 39, 3, 61, 3, -2),
    Sketcher.Constraint("Symmetric", 23, 3, 77, 3, -2),
    Sketcher.Constraint("Symmetric", 48, 2, 51, 1, -2),
    Sketcher.Constraint("Symmetric", 29, 1, 70, 2, -2),
    Sketcher.Constraint("Symmetric", 26, 2, 73, 1, -2),
    Sketcher.Constraint("Symmetric", 21, 3, 35, 3, -1),
    Sketcher.Constraint("Perpendicular", 4, 8),
    Sketcher.Constraint("Parallel", 8, 26),
    Sketcher.Constraint("Perpendicular", 26, 30),
    Sketcher.Constraint("Horizontal", 78, 2, 81, 2),
    Sketcher.Constraint("Vertical", 64, 2, 79, 2),
    Sketcher.Constraint("Vertical", 63, 2, 80, 2),
    Sketcher.Constraint("Vertical", 62, 2, 81, 2),
    Sketcher.Constraint("Equal", 60, 18),
    Sketcher.Constraint("Diameter", 88, 6.8),
    Sketcher.Constraint("Angle", 68, Q("-2 deg")),
    Sketcher.Constraint("Radius", 1, 1.57),
    Sketcher.Constraint("Radius", 3, 0.76),
    Sketcher.Constraint("Radius", 17, 3.17),
    Sketcher.Constraint("Radius", 27, 4.75),
    Sketcher.Constraint("DistanceX", 16, 1, 16, 2, 11.2),
    Sketcher.Constraint("DistanceY", 15, 2, -1, 1, 20.0),
    Sketcher.Constraint("DistanceX", -1, 1, 17, 2, 20.0),
    Sketcher.Constraint("DistanceX", 64, 1, 64, 2, 1.18),
    Sketcher.Constraint("DistanceX", 0, 2, 0, 1, 3.085),
    Sketcher.Constraint("Radius", 5, 4.864551),
    Sketcher.Constraint("DistanceY", 22, 2, 22, 1, 3.085399),
    Sketcher.Constraint("DistanceX", -1, 1, 27, 3, 12.435),
    Sketcher.Constraint("DistanceY", 5, 1, -1, 1, 7.685),
    Sketcher.Constraint("DistanceY", -1, 1, 68, 2, 10.033001),
    Sketcher.Constraint("DistanceX", 6, 1, 6, 2, 5.554671),
    Sketcher.Constraint("DistanceX", 24, 2, 24, 1, 0.489942),
    Sketcher.Constraint("DistanceY", 2, 1, 2, 2, 0.462111),
    Sketcher.Constraint("DistanceY", 28, 1, 28, 2, 5.001569),
    Sketcher.Constraint("DistanceY", 62, 2, 62, 1, 11.257021),
    Sketcher.Constraint("DistanceY", 78, 1, 78, 2, 2.95748),
    Sketcher.Constraint("DistanceY", 82, 2, 82, 1, 11.260449),
    Sketcher.Constraint("DistanceX", 68, 2, -1, 1, 13.719899),
    Sketcher.Constraint("DistanceX", 75, 1, -1, 1, 13.816899),
    Sketcher.Constraint("DistanceX", 20, 2, 20, 1, 1.180004),
    Sketcher.Constraint("DistanceX", 84, 1, 84, 2, 11.044615),
    Sketcher.Constraint("DistanceX", -1, 1, 25, 3, 13.811732),
    Sketcher.Constraint("DistanceY", 79, 3, -1, 1, 5.690449),
])
sketch1.setExpression("Constraints[187]", "Params.sketch1_diameter")
sketch1.setExpression("Constraints[189]", "Params.sketch1_radius")
sketch1.setExpression("Constraints[190]", "Params.sketch1_radius2")
sketch1.setExpression("Constraints[191]", "Params.sketch1_radius3")
sketch1.setExpression("Constraints[192]", "Params.sketch1_radius4")
pad1 = body.newObject("PartDesign::Pad", "Pad")
pad1.Profile = sketch1
pad1.setExpression("Length", "Params.pad1_length")
pad1.Reversed = True

doc.recompute()
